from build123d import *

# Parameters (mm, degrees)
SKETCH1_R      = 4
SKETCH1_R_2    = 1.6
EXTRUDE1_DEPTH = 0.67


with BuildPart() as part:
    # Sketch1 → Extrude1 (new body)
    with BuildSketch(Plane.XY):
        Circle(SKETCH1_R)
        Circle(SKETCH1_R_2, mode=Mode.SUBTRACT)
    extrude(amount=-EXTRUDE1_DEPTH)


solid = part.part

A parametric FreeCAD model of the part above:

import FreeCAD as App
import Part
import Sketcher
Q = App.Units.Quantity

doc = App.newDocument("Part")
body = doc.addObject("PartDesign::Body", "Body")

# Sketch on XY plane
sketch1 = doc.addObject("Sketcher::SketchObject", "Sketch")
body.addObject(sketch1)
sketch1.AttachmentSupport = (doc.XY_Plane, [""])
sketch1.MapMode = "FlatFace"
sketch1.addGeometry(Part.Circle(App.Vector(0, 0, 0), App.Vector(0, 0, 1), 4), False)
sketch1.addGeometry(Part.Circle(App.Vector(0, 0, 0), App.Vector(0, 0, 1), 1.6), False)
sketch1.addConstraint(Sketcher.Constraint("Coincident", 0, 3, -1, 1))
sketch1.addConstraint(Sketcher.Constraint("Coincident", 1, 3, -1, 1))
sketch1.addConstraint(Sketcher.Constraint("Diameter", 0, Q("8 mm")))
sketch1.addConstraint(Sketcher.Constraint("Diameter", 1, Q("3.2 mm")))
pad1 = doc.addObject("PartDesign::Pad", "Pad")
body.addObject(pad1)
pad1.Profile = sketch1
pad1.Length = 0.67
pad1.Reversed = True

doc.recompute()
